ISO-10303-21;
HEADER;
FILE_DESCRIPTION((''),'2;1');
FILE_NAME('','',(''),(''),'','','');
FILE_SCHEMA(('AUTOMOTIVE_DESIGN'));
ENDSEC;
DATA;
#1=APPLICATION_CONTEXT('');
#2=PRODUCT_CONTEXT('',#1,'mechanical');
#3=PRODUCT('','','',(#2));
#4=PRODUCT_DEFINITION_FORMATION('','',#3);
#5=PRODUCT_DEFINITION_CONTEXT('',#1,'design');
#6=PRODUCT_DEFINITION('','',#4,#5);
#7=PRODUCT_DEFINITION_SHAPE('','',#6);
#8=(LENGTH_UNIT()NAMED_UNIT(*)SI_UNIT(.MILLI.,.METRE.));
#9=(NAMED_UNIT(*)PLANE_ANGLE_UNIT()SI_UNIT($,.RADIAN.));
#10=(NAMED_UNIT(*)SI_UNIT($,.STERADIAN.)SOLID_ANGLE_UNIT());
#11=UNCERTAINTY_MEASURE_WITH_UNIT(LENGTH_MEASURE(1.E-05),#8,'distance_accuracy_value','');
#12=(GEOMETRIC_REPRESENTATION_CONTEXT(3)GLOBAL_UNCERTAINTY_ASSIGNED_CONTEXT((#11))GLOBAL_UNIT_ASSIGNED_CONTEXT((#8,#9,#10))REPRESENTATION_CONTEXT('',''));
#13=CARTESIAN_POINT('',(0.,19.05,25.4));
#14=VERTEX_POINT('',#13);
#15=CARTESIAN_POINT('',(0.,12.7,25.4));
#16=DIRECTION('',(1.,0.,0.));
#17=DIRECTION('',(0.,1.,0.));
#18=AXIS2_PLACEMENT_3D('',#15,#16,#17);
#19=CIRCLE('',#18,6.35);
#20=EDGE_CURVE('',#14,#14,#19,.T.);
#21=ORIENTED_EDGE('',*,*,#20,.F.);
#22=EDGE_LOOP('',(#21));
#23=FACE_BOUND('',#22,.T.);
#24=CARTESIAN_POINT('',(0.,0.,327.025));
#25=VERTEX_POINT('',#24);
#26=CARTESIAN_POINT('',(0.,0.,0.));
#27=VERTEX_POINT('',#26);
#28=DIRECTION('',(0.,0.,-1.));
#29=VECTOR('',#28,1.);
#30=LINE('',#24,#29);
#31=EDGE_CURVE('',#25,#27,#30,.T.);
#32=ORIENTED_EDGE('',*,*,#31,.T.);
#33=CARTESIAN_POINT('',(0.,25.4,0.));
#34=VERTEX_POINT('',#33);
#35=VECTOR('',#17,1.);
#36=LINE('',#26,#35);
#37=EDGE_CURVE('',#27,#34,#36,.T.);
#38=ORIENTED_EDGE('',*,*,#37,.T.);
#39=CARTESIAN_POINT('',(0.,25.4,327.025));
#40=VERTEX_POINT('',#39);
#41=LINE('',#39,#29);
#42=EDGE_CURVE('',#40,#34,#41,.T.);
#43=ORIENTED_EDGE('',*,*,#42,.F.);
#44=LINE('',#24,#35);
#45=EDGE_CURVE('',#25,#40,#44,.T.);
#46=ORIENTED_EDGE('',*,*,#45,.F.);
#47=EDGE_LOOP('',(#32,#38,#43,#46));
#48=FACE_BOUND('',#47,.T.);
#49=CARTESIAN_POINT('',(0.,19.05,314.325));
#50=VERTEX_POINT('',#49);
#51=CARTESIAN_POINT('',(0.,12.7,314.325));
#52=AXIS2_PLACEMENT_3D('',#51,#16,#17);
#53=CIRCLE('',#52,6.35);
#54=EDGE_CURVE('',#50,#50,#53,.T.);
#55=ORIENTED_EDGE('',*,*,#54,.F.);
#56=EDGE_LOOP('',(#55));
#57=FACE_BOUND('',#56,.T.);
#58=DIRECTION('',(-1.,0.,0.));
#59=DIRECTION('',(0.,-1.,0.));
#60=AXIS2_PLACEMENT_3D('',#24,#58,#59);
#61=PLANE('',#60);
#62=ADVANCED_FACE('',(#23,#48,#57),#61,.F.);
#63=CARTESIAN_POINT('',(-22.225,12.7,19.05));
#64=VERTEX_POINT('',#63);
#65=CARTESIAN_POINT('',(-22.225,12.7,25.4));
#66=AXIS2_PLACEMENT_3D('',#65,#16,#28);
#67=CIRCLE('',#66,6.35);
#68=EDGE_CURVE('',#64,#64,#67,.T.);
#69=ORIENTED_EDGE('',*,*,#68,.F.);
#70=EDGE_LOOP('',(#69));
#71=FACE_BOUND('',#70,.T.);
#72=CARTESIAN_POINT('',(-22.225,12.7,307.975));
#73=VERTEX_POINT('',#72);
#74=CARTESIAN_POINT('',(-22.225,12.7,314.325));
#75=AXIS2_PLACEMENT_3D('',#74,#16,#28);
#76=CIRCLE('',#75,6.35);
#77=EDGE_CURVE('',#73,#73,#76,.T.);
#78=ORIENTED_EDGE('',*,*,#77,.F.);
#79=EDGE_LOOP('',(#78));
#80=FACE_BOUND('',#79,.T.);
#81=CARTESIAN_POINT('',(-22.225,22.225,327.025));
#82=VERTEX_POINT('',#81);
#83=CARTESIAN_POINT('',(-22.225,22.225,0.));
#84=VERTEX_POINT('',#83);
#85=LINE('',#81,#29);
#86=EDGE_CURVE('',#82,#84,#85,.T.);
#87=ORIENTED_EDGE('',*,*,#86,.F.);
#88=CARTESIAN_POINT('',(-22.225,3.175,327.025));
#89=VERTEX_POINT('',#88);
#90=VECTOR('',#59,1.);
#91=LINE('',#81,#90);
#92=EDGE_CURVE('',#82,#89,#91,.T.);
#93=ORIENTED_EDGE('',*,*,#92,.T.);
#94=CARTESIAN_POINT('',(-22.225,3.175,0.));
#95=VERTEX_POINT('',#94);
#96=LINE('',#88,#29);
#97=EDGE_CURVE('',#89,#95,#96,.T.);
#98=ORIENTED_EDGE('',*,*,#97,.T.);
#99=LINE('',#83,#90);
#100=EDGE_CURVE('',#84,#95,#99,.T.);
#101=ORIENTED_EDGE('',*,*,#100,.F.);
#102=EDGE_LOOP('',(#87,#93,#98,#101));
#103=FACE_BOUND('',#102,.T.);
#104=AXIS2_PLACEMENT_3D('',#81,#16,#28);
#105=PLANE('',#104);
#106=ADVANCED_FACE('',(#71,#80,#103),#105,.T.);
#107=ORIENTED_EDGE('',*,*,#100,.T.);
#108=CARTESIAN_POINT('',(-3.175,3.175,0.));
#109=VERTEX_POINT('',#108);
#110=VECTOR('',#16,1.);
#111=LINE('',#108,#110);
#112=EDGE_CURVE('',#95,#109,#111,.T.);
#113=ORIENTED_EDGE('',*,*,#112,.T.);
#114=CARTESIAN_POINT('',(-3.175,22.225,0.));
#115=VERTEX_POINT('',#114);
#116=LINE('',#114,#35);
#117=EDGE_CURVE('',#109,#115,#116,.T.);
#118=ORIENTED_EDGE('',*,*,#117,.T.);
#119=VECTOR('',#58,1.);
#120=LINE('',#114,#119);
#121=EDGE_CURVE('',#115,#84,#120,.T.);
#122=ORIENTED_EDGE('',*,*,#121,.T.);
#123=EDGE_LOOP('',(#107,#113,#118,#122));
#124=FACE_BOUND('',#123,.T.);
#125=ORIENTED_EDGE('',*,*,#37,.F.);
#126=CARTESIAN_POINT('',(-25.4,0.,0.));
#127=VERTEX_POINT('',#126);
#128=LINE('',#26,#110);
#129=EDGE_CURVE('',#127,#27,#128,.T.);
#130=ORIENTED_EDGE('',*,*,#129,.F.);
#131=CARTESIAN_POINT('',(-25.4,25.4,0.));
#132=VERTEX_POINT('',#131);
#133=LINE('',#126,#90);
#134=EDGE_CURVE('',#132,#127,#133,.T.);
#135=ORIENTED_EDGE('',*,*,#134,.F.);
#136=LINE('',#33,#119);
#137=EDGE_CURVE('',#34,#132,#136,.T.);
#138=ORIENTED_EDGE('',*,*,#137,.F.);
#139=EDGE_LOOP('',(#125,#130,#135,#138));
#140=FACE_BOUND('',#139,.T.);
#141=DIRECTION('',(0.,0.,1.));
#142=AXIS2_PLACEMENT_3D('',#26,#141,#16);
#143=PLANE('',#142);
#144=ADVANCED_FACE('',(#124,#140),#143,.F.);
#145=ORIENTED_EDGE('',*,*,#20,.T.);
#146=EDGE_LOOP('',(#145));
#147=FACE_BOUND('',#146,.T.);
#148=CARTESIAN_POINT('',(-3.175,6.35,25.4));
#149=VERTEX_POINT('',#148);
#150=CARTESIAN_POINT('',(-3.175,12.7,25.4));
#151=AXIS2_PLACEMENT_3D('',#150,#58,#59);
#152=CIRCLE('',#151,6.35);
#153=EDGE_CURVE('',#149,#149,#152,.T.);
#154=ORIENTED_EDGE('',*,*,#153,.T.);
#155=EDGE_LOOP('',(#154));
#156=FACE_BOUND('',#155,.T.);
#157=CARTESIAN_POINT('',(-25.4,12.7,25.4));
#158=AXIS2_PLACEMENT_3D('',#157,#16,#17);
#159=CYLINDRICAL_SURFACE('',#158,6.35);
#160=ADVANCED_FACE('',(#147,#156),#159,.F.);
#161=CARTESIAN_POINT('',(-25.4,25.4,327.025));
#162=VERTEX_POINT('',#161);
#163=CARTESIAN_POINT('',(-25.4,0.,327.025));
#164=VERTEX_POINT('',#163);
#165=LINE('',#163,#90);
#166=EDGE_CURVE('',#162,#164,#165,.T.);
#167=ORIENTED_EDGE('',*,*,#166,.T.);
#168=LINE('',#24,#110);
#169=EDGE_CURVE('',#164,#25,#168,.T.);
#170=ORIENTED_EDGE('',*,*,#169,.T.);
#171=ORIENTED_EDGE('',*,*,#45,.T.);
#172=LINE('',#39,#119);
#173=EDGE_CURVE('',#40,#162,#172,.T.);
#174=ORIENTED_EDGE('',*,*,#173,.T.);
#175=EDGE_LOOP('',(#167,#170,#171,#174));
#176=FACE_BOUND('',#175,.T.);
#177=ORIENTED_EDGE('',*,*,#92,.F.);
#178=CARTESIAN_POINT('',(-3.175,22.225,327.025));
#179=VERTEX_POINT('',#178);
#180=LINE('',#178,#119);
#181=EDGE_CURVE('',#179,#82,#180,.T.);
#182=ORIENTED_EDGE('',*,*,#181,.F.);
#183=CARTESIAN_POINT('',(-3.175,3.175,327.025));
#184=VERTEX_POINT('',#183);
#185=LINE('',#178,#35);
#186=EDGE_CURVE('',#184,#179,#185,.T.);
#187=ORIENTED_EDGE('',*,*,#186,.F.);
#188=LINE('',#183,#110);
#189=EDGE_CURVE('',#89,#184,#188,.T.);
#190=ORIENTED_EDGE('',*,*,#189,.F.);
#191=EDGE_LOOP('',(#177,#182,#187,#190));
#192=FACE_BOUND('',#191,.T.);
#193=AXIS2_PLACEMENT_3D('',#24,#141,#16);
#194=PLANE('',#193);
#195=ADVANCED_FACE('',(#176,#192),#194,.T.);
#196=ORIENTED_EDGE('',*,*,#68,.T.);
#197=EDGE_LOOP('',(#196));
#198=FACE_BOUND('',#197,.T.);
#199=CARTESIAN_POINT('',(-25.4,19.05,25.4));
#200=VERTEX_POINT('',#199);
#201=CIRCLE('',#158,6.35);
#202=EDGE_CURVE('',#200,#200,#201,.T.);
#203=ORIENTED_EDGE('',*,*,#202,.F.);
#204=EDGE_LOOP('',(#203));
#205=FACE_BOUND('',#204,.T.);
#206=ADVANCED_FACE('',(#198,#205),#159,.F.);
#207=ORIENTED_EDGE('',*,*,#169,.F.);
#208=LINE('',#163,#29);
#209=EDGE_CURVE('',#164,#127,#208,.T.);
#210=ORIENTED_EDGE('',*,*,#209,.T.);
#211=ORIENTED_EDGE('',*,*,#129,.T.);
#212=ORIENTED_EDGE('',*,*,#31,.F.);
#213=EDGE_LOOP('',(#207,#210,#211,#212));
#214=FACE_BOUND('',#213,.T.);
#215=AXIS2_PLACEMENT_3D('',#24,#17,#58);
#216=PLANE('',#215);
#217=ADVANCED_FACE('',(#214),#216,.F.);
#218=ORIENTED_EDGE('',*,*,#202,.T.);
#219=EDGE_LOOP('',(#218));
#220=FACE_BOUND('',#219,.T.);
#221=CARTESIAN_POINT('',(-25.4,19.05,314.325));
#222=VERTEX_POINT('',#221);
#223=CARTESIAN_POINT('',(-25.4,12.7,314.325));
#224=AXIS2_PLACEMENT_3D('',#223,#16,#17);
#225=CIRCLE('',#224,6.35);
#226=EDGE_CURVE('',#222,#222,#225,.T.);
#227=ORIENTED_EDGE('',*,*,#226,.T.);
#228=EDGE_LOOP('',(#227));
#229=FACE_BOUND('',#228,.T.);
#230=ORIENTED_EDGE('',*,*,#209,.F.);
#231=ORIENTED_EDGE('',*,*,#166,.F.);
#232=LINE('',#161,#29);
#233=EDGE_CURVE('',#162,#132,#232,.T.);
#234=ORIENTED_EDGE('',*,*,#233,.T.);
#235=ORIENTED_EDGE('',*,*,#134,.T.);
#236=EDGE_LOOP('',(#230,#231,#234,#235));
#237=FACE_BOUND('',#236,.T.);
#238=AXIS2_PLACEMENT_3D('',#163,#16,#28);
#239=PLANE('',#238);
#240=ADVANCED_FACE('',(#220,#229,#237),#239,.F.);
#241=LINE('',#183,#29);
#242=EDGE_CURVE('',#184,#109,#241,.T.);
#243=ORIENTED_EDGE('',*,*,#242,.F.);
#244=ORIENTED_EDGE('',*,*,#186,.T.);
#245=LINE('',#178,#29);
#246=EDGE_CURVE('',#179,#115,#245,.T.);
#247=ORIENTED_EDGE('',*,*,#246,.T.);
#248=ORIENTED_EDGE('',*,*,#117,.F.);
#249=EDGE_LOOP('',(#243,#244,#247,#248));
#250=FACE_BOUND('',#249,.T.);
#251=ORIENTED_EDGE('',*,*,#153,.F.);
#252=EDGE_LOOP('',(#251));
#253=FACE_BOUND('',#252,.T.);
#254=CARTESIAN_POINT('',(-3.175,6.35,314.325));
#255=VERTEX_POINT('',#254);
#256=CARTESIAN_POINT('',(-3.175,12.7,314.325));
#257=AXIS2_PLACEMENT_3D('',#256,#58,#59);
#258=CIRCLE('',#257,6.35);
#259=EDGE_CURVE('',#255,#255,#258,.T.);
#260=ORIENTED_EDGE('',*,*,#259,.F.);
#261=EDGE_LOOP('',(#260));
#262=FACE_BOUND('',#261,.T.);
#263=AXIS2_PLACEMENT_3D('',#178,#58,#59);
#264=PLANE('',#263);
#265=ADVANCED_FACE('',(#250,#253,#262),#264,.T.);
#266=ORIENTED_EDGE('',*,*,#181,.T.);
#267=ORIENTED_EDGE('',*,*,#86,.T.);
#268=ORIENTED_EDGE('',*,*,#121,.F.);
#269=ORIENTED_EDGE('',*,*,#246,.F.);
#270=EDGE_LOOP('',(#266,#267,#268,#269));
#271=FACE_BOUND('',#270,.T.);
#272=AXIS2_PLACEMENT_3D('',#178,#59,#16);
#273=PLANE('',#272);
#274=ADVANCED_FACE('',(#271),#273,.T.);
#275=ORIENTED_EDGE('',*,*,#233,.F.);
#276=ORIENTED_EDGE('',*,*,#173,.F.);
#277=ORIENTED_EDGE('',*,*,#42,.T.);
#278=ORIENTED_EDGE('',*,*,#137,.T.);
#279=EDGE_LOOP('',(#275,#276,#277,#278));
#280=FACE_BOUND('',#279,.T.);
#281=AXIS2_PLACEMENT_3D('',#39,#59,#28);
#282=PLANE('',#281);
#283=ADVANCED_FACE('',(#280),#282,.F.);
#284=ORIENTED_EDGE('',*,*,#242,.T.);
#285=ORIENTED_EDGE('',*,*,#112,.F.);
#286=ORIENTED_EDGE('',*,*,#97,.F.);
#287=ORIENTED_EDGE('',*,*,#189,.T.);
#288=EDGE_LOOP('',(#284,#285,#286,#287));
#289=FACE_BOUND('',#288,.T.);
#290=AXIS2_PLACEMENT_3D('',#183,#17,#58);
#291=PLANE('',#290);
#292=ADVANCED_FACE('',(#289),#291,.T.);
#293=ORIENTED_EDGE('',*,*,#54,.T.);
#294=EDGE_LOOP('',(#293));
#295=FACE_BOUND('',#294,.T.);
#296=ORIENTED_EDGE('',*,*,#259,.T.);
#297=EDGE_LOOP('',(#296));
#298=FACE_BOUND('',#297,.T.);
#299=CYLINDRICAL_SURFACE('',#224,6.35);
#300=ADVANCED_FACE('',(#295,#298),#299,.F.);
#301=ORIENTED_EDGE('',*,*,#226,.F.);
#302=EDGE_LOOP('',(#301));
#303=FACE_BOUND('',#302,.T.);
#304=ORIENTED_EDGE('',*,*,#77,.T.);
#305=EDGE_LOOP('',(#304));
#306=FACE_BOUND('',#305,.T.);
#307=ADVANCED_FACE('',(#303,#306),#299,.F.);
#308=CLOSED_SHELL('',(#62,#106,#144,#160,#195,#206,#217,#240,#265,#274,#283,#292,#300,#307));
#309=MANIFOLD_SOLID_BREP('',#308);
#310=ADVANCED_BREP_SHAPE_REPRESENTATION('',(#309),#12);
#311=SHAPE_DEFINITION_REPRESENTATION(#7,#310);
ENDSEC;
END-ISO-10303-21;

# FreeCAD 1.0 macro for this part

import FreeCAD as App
import Part
import Sketcher

V = App.Vector
Q = App.Units.Quantity

doc = App.newDocument("Part")
body = doc.addObject("PartDesign::Body", "Body")

sketch1 = doc.addObject("Sketcher::SketchObject", "Sketch")
body.addObject(sketch1)
sketch1.AttachmentSupport = (doc.XY_Plane, [""])
sketch1.MapMode = "FlatFace"
sketch1.addGeometry(Part.LineSegment(V(-25.4, 25.4, 0), V(-25.4, 0, 0)), False)
sketch1.addGeometry(Part.LineSegment(V(-25.4, 0, 0), V(0, 0, 0)), False)
sketch1.addGeometry(Part.LineSegment(V(0, 0, 0), V(0, 25.4, 0)), False)
sketch1.addGeometry(Part.LineSegment(V(0, 25.4, 0), V(-25.4, 25.4, 0)), False)
sketch1.addGeometry(Part.LineSegment(V(-3.175, 3.175, 0), V(-22.225, 3.175, 0)), False)
sketch1.addGeometry(Part.LineSegment(V(-22.225, 3.175, 0), V(-22.225, 22.225, 0)), False)
sketch1.addGeometry(Part.LineSegment(V(-22.225, 22.225, 0), V(-3.175, 22.225, 0)), False)
sketch1.addGeometry(Part.LineSegment(V(-3.175, 22.225, 0), V(-3.175, 3.175, 0)), False)
sketch1.addConstraint(Sketcher.Constraint("Coincident", 0, 2, 1, 1))
sketch1.addConstraint(Sketcher.Constraint("Coincident", 1, 2, 2, 1))
sketch1.addConstraint(Sketcher.Constraint("Coincident", 2, 2, 3, 1))
sketch1.addConstraint(Sketcher.Constraint("Coincident", 3, 2, 0, 1))
sketch1.addConstraint(Sketcher.Constraint("Coincident", 4, 2, 5, 1))
sketch1.addConstraint(Sketcher.Constraint("Coincident", 5, 2, 6, 1))
sketch1.addConstraint(Sketcher.Constraint("Coincident", 6, 2, 7, 1))
sketch1.addConstraint(Sketcher.Constraint("Coincident", 7, 2, 4, 1))
sketch1.addConstraint(Sketcher.Constraint("Vertical", 0))
sketch1.addConstraint(Sketcher.Constraint("Horizontal", 1))
sketch1.addConstraint(Sketcher.Constraint("Vertical", 2))
sketch1.addConstraint(Sketcher.Constraint("Horizontal", 3))
sketch1.addConstraint(Sketcher.Constraint("Horizontal", 4))
sketch1.addConstraint(Sketcher.Constraint("Vertical", 5))
sketch1.addConstraint(Sketcher.Constraint("Horizontal", 6))
sketch1.addConstraint(Sketcher.Constraint("Vertical", 7))
sketch1.addConstraint(Sketcher.Constraint("Coincident", 1, 2, -1, 1))
sketch1.addConstraint(Sketcher.Constraint("Equal", 3, 0))
sketch1.addConstraint(Sketcher.Constraint("Equal", 6, 5))
sketch1.addConstraint(Sketcher.Constraint("DistanceX", 1, 1, 1, 2, Q("1 in")))
sketch1.addConstraint(Sketcher.Constraint("DistanceX", 4, 2, 4, 1, Q("0.75 in")))
sketch1.addConstraint(Sketcher.Constraint("DistanceX", 4, 2, -1, 1, Q("0.875 in")))
sketch1.addConstraint(Sketcher.Constraint("DistanceY", -1, 1, 4, 2, Q("0.125 in")))
pad1 = doc.addObject("PartDesign::Pad", "Pad")
body.addObject(pad1)
pad1.Profile = sketch1
pad1.Length = Q("12.875 in")

sketch2 = doc.addObject("Sketcher::SketchObject", "Sketch001")
body.addObject(sketch2)
sketch2.AttachmentSupport = (doc.YZ_Plane, [""])
sketch2.MapMode = "FlatFace"
sketch2.addGeometry(Part.Circle(V(12.7, 25.4, 0), V(0, 0, 1), 6.35), False)
sketch2.addGeometry(Part.Circle(V(12.7, 314.325, 0), V(0, 0, 1), 6.35), False)
sketch2.addConstraint(Sketcher.Constraint("Equal", 0, 1))
sketch2.addConstraint(Sketcher.Constraint("Vertical", 0, 3, 1, 3))
sketch2.addConstraint(Sketcher.Constraint("Diameter", 0, Q("0.5 in")))
sketch2.addConstraint(Sketcher.Constraint("DistanceY", -1, 1, 0, 3, Q("1 in")))
sketch2.addConstraint(Sketcher.Constraint("DistanceX", -1, 1, 0, 3, Q("0.5 in")))
sketch2.addConstraint(Sketcher.Constraint("DistanceY", -1, 1, 1, 3, Q("12.375 in")))
pocket1 = doc.addObject("PartDesign::Pocket", "Pocket")
body.addObject(pocket1)
pocket1.Profile = sketch2
pocket1.Type = "ThroughAll"

doc.recompute()
